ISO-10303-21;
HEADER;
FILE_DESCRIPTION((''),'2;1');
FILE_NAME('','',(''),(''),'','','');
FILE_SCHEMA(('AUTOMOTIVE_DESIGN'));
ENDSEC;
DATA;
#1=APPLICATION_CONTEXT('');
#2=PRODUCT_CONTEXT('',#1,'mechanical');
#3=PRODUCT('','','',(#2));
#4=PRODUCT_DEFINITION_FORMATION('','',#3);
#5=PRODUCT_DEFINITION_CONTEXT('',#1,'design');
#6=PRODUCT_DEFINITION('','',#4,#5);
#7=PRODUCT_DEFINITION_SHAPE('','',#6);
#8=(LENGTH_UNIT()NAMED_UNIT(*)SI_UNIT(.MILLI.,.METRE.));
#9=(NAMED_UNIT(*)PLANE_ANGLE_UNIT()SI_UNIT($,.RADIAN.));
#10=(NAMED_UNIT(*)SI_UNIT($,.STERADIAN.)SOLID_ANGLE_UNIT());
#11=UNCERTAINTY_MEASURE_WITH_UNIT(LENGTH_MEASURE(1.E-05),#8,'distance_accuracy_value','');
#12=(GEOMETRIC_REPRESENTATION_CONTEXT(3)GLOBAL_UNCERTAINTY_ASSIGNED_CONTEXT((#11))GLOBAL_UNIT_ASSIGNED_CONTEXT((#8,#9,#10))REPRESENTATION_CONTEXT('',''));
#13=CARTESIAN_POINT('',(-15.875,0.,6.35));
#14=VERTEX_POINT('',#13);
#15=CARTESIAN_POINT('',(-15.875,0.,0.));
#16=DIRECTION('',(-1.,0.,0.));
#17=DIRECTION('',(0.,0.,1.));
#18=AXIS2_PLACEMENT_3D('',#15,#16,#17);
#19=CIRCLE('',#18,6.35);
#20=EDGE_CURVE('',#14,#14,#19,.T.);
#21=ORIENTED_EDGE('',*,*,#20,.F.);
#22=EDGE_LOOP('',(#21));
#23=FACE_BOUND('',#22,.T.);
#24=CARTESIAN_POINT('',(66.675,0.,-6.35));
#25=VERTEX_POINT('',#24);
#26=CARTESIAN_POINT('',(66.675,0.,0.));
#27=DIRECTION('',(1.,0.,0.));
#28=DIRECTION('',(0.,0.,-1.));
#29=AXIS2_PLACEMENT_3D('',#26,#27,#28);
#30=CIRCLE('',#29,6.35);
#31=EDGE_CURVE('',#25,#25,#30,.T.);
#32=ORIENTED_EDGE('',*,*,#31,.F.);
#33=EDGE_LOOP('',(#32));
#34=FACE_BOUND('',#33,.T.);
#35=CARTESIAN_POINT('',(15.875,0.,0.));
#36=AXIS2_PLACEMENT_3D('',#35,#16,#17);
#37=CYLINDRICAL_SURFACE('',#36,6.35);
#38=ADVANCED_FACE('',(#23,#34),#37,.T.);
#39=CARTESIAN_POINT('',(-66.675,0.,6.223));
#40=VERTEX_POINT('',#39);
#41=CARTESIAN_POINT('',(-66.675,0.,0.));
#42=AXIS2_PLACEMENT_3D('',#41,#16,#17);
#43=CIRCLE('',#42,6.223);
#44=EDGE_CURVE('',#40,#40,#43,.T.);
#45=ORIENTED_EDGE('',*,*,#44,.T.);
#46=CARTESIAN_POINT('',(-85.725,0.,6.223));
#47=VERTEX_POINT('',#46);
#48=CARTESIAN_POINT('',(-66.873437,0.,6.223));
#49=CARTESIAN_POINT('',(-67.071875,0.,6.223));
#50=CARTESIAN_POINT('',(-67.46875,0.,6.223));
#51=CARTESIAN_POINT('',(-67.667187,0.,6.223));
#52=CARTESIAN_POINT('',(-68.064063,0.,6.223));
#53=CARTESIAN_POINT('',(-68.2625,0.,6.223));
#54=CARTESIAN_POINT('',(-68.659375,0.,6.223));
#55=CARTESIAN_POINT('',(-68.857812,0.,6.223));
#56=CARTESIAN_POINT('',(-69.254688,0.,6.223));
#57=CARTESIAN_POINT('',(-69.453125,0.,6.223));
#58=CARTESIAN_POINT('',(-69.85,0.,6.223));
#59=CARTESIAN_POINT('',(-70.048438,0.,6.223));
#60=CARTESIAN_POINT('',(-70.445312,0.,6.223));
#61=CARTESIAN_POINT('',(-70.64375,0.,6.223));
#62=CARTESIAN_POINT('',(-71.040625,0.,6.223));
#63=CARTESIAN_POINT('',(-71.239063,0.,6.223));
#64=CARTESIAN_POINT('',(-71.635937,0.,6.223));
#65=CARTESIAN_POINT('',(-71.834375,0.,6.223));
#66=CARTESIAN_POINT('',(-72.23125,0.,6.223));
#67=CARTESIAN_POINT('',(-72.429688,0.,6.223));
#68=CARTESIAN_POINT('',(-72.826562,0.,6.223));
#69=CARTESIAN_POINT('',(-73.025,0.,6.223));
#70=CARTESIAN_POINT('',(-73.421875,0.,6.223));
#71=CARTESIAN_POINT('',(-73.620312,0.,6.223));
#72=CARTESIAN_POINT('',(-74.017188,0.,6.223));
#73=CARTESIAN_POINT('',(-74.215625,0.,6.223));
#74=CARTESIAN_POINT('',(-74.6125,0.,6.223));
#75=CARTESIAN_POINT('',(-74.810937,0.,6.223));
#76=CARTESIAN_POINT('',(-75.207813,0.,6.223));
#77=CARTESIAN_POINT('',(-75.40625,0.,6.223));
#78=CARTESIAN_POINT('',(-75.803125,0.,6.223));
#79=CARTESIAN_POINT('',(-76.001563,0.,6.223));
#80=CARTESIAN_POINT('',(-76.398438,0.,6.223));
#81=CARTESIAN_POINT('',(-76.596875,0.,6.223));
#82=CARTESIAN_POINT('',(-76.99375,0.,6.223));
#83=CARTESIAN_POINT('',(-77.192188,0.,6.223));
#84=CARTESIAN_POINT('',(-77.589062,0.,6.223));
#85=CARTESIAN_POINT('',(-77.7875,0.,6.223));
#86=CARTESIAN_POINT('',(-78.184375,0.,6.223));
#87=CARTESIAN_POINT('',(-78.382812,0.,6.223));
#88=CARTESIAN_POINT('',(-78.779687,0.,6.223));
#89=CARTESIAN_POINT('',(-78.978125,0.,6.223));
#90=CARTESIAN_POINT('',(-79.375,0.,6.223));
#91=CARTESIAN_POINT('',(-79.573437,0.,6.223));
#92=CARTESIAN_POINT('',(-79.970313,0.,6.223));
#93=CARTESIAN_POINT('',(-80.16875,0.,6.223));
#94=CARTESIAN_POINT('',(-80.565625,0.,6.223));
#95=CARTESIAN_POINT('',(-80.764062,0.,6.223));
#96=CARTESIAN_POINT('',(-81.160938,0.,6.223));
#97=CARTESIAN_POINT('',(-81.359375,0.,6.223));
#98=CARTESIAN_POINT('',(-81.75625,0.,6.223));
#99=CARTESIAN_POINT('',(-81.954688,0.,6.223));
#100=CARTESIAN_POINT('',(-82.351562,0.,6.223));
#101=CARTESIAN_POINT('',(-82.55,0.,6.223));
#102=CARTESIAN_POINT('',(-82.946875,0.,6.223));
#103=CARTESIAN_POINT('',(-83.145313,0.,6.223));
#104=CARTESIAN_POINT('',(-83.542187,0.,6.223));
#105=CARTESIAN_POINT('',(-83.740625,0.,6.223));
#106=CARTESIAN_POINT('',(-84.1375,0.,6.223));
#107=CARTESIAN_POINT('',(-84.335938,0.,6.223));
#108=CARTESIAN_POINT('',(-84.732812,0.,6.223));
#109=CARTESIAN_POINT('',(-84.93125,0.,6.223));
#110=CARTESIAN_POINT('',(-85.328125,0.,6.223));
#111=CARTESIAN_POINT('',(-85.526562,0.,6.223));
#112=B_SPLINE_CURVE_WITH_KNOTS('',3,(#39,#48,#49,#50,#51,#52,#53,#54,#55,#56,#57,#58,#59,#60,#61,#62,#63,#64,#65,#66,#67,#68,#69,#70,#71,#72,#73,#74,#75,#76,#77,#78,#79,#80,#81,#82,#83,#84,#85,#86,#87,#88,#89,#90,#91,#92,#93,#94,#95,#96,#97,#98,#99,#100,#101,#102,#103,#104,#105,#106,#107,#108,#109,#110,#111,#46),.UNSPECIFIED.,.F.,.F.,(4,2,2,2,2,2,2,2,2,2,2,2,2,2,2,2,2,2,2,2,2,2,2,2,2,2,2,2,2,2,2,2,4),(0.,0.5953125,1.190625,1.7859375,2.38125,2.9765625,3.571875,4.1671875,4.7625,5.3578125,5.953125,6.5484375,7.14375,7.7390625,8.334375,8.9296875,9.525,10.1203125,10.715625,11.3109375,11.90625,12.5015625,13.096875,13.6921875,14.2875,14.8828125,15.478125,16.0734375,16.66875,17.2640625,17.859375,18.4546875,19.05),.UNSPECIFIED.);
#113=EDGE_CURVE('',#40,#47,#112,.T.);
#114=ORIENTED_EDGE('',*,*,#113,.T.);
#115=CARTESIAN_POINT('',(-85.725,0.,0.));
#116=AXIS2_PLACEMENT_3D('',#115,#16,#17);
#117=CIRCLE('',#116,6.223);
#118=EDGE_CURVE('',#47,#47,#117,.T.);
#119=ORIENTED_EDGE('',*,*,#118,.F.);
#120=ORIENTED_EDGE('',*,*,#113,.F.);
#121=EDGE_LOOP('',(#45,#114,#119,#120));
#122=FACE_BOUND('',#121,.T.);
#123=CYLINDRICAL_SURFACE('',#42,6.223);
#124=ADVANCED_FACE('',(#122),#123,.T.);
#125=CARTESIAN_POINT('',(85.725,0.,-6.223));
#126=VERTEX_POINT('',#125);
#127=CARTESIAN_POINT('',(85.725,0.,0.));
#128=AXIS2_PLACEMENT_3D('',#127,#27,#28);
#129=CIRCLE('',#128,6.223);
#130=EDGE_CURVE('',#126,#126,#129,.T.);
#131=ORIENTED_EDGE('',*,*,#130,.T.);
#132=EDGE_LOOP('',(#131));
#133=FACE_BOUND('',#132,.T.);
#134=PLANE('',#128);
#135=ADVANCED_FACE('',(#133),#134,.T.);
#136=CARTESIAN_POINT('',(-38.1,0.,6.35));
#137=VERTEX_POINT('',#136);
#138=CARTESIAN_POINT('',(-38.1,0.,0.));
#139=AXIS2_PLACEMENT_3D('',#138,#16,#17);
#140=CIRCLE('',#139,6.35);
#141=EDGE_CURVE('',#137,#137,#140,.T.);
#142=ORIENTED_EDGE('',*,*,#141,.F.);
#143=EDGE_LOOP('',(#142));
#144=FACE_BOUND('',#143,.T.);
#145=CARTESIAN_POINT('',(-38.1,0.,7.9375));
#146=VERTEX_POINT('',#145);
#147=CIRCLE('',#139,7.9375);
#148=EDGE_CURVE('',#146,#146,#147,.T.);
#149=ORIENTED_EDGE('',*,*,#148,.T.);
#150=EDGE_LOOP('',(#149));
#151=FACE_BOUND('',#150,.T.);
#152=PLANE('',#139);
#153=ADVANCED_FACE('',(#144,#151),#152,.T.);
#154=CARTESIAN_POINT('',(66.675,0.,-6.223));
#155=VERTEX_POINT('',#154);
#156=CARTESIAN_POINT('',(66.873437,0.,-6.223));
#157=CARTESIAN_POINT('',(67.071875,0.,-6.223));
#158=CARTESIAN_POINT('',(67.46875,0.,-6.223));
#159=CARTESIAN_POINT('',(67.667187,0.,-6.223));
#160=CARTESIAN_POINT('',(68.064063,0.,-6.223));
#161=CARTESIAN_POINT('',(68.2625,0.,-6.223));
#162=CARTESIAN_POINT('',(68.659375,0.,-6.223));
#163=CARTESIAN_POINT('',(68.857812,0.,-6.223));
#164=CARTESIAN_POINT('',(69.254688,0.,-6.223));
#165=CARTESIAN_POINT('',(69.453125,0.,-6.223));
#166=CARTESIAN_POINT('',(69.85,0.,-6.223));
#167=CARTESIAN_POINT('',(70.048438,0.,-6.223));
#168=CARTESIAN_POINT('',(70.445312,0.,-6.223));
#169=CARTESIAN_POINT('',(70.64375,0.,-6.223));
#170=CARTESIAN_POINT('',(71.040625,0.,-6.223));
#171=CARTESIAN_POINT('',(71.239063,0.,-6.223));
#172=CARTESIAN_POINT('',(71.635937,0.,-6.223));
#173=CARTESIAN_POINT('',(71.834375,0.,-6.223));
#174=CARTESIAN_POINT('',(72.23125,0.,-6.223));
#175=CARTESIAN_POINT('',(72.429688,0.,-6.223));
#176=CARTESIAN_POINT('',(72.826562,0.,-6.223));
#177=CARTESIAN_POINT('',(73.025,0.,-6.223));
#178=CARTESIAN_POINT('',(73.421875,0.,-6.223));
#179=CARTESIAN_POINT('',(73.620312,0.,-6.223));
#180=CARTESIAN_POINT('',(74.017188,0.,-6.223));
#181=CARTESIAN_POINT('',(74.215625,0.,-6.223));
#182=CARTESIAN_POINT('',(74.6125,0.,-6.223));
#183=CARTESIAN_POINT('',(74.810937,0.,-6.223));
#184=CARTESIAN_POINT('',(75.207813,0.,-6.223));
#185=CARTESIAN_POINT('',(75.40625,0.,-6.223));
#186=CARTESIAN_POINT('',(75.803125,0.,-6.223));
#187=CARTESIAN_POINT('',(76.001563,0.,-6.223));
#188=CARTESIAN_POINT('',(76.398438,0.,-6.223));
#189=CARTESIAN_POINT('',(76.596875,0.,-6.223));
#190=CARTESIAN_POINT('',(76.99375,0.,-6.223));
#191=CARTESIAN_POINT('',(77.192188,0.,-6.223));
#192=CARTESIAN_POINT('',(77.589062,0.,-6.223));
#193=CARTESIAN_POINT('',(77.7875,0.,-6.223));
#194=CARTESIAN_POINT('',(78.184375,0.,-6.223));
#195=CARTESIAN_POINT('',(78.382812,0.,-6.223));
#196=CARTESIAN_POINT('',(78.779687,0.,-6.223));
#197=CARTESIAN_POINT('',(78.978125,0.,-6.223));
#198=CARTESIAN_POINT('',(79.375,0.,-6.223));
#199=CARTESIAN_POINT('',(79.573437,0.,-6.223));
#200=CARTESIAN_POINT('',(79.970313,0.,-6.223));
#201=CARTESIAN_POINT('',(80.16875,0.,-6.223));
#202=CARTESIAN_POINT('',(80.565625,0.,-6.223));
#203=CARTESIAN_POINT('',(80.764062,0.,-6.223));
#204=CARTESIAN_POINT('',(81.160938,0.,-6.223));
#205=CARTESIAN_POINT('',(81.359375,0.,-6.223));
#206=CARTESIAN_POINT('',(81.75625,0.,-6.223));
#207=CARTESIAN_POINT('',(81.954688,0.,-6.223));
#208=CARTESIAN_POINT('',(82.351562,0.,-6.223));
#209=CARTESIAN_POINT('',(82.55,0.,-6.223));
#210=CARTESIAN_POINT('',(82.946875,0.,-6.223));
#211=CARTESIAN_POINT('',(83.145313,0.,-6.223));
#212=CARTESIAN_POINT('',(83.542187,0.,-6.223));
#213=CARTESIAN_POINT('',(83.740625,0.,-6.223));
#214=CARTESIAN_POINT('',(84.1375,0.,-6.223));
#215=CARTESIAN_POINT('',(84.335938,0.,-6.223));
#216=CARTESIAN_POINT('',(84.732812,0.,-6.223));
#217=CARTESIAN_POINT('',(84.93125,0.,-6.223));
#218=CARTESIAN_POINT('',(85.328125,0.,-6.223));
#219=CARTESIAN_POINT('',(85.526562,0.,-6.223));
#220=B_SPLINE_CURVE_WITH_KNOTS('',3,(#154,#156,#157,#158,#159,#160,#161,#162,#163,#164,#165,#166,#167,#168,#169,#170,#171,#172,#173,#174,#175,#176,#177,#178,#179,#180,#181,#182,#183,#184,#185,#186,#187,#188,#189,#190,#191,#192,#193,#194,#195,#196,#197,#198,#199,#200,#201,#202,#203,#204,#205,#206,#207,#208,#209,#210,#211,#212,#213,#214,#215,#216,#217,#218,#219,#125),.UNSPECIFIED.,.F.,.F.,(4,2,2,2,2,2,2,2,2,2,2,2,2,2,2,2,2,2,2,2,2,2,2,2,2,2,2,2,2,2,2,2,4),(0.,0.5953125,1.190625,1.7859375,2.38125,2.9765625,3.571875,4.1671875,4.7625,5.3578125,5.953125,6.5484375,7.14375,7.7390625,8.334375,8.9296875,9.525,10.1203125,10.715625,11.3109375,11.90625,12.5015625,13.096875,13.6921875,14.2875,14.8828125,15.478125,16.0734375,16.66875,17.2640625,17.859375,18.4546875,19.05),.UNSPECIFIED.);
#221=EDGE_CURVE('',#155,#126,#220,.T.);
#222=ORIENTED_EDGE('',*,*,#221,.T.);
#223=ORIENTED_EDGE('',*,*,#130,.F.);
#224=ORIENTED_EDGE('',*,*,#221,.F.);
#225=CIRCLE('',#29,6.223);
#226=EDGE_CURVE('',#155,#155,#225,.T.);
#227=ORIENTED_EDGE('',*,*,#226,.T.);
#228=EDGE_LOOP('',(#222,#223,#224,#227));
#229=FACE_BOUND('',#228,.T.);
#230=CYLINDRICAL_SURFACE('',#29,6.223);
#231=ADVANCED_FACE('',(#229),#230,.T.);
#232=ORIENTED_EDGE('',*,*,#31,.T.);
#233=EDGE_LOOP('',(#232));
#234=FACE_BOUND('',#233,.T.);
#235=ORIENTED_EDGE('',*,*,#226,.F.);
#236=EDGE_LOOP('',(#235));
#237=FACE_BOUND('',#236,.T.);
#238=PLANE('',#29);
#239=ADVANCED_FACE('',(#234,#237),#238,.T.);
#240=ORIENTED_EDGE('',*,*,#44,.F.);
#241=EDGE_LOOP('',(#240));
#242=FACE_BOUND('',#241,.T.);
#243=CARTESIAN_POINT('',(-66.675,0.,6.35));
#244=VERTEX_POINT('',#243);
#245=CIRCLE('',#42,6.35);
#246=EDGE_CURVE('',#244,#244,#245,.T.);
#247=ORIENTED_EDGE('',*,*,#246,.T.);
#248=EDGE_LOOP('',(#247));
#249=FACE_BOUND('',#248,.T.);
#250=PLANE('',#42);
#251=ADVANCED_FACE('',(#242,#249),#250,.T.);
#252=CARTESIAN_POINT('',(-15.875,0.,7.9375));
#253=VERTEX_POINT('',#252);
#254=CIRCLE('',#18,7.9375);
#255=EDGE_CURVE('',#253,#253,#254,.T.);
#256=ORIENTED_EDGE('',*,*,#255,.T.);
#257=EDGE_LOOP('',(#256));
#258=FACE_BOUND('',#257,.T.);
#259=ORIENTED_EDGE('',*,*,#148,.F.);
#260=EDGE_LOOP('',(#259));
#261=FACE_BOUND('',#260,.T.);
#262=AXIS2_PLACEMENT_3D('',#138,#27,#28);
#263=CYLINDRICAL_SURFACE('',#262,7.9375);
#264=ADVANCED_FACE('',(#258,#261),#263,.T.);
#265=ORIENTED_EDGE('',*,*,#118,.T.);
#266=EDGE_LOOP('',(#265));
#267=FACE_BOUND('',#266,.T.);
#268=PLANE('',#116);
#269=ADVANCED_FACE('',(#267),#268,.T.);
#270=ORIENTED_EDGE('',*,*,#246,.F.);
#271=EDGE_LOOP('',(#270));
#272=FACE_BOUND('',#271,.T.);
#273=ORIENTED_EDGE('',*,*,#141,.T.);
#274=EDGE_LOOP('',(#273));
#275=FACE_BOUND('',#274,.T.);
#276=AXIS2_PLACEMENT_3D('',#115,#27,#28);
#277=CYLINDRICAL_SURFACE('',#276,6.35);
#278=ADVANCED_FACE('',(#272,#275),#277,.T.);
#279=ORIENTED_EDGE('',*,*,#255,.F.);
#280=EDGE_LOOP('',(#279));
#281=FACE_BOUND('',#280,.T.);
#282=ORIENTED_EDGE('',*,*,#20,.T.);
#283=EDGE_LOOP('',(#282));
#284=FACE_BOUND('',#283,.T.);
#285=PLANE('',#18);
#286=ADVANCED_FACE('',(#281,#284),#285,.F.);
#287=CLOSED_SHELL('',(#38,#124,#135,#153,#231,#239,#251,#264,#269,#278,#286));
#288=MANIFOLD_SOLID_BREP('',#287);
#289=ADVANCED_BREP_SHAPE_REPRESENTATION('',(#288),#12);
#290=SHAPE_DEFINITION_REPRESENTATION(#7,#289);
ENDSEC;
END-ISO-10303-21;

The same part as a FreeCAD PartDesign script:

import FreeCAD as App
import Part
import Sketcher
from FreeCAD import Vector
Q = App.Units.Quantity


def add_polygon(sketch, points):
    """Adds a closed chain of lines whose ends are joined by coincident constraints."""
    first, n = sketch.GeometryCount, len(points)
    for a, b in zip(points, points[1:] + points[:1]):
        sketch.addGeometry(Part.LineSegment(App.Vector(*a, 0), App.Vector(*b, 0)), False)
    for i in range(n):
        sketch.addConstraint(Sketcher.Constraint("Coincident", first + i, 2, first + (i + 1) % n, 1))

doc = App.newDocument("Part")
body = doc.addObject("PartDesign::Body", "Body")

# Sketch on YZ plane
sketch1 = doc.addObject("Sketcher::SketchObject", "Sketch")
body.addObject(sketch1)
sketch1.AttachmentSupport = (doc.YZ_Plane, [""])
sketch1.MapMode = "FlatFace"
sketch1.addGeometry(Part.Circle(Vector(0, 0, 0), Vector(0, 0, 1), 6), False)
sketch1.addConstraint([
    Sketcher.Constraint("Coincident", 0, 3, -1, 1),
    Sketcher.Constraint("Diameter", 0, Q("0.5 in")),
])
pad1 = doc.addObject("PartDesign::Pad", "Pad")
body.addObject(pad1)
pad1.Profile = sketch1
pad1.Length = Q("1.25 in")
pad1.Midplane = True

# Sketch on YZ plane
sketch2 = doc.addObject("Sketcher::SketchObject", "Sketch001")
body.addObject(sketch2)
sketch2.AttachmentSupport = (doc.YZ_Plane, [""])
sketch2.MapMode = "FlatFace"
sketch2.AttachmentOffset = App.Placement(Vector(0, 0, -0.625 * 25.4), App.Rotation())
sketch2.addGeometry(Part.Circle(Vector(0, 0, 0), Vector(0, 0, 1), 8), False)
sketch2.addConstraint([
    Sketcher.Constraint("Coincident", 0, 3, -1, 1),
    Sketcher.Constraint("Diameter", 0, Q("0.625 in")),
])
pad2 = doc.addObject("PartDesign::Pad", "Pad001")
body.addObject(pad2)
pad2.Profile = sketch2
pad2.Length = Q("0.875 in")
pad2.Reversed = True

# Sketch on YZ plane
sketch3 = doc.addObject("Sketcher::SketchObject", "Sketch002")
body.addObject(sketch3)
sketch3.AttachmentSupport = (doc.YZ_Plane, [""])
sketch3.MapMode = "FlatFace"
sketch3.AttachmentOffset = App.Placement(Vector(0, 0, 3.375 * 25.4), App.Rotation())
sketch3.addGeometry(Part.Circle(Vector(0, 0, 0), Vector(0, 0, 1), 6), False)
sketch3.addConstraint([
    Sketcher.Constraint("Coincident", 0, 3, -1, 1),
    Sketcher.Constraint("Diameter", 0, Q("0.5 in")),
])
pad3 = doc.addObject("PartDesign::Pad", "Pad002")
body.addObject(pad3)
pad3.Profile = sketch3
pad3.Length = Q("2.75 in")
pad3.Reversed = True

# Sketch on YZ plane
sketch4 = doc.addObject("Sketcher::SketchObject", "Sketch003")
body.addObject(sketch4)
sketch4.AttachmentSupport = (doc.YZ_Plane, [""])
sketch4.MapMode = "FlatFace"
sketch4.AttachmentOffset = App.Placement(Vector(0, 0, -1.5 * 25.4), App.Rotation())
sketch4.addGeometry(Part.Circle(Vector(0, 0, 0), Vector(0, 0, 1), 6), False)
sketch4.addConstraint([
    Sketcher.Constraint("Coincident", 0, 3, -1, 1),
    Sketcher.Constraint("Diameter", 0, Q("0.5 in")),
])
pad4 = doc.addObject("PartDesign::Pad", "Pad003")
body.addObject(pad4)
pad4.Profile = sketch4
pad4.Length = Q("1.875 in")
pad4.Reversed = True

# Sketch on YZ plane
sketch5 = doc.addObject("Sketcher::SketchObject", "Sketch004")
body.addObject(sketch5)
sketch5.AttachmentSupport = (doc.YZ_Plane, [""])
sketch5.MapMode = "FlatFace"
sketch5.AttachmentOffset = App.Placement(Vector(0, 0, -3.375 * 25.4), App.Rotation())
add_polygon(sketch5, [(26, -26), (-26, -26), (-26, 26), (26, 26)])  # lines 0-3
sketch5.addGeometry(Part.Circle(Vector(0, 0, 0), Vector(0, 0, 1), 6), False)  # 4
sketch5.addConstraint([
    Sketcher.Constraint("Horizontal", 0),
    Sketcher.Constraint("Vertical", 1),
    Sketcher.Constraint("Horizontal", 2),
    Sketcher.Constraint("Vertical", 3),
    Sketcher.Constraint("Coincident", 4, 3, -1, 1),
    Sketcher.Constraint("Symmetric", 0, 2, 2, 2, -1, 1),
    Sketcher.Constraint("Equal", 2, 1),
    Sketcher.Constraint("Diameter", 4, Q("0.49 in")),
    Sketcher.Constraint("DistanceX", 0, 2, 0, 1, 52.458),
])
pocket1 = doc.addObject("PartDesign::Pocket", "Pocket")
body.addObject(pocket1)
pocket1.Profile = sketch5
pocket1.Length = Q("0.75 in")
pocket1.Reversed = True

# Sketch on YZ plane
sketch6 = doc.addObject("Sketcher::SketchObject", "Sketch005")
body.addObject(sketch6)
sketch6.AttachmentSupport = (doc.YZ_Plane, [""])
sketch6.MapMode = "FlatFace"
sketch6.AttachmentOffset = App.Placement(Vector(0, 0, 3.375 * 25.4), App.Rotation())
add_polygon(sketch6, [(26, 26), (-26, 26), (-26, -26), (26, -26)])  # lines 0-3
sketch6.addGeometry(Part.Circle(Vector(0, 0, 0), Vector(0, 0, 1), 6), False)  # 4
sketch6.addConstraint([
    Sketcher.Constraint("Horizontal", 0),
    Sketcher.Constraint("Vertical", 1),
    Sketcher.Constraint("Horizontal", 2),
    Sketcher.Constraint("Vertical", 3),
    Sketcher.Constraint("Coincident", 4, 3, -1, 1),
    Sketcher.Constraint("Symmetric", 0, 2, 2, 2, -1, 1),
    Sketcher.Constraint("Equal", 2, 1),
    Sketcher.Constraint("Diameter", 4, Q("0.49 in")),
    Sketcher.Constraint("DistanceX", 0, 2, 0, 1, 52.458),
])
pocket2 = doc.addObject("PartDesign::Pocket", "Pocket001")
body.addObject(pocket2)
pocket2.Profile = sketch6
pocket2.Length = Q("0.75 in")

doc.recompute()
